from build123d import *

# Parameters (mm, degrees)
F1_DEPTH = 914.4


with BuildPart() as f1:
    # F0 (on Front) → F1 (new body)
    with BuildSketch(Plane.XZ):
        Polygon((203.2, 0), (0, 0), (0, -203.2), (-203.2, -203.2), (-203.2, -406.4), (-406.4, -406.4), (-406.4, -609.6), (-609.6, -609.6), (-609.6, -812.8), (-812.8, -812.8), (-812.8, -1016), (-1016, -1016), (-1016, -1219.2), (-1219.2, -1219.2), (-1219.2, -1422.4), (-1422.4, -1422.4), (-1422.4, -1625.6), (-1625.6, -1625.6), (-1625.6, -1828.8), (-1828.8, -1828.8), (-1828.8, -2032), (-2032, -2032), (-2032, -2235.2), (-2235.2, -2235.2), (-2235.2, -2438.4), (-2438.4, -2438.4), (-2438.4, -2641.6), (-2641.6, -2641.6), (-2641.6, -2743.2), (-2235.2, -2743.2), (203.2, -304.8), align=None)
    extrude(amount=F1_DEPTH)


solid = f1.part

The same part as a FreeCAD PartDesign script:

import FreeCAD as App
import Part
import Sketcher
Q = App.Units.Quantity

doc = App.newDocument("Part")
body = doc.addObject("PartDesign::Body", "Body")

sketch1 = body.newObject("Sketcher::SketchObject", "Sketch")
sketch1.AttachmentSupport = (doc.getObject("XZ_Plane"), [""])
sketch1.MapMode = "FlatFace"
sketch1.addGeometry([
    Part.LineSegment(App.Vector(203.2, 0, 0), App.Vector(0, 0, 0)),
    Part.LineSegment(App.Vector(0, 0, 0), App.Vector(0, -203.2, 0)),
    Part.LineSegment(App.Vector(0, -203.2, 0), App.Vector(-203.2, -203.2, 0)),
    Part.LineSegment(App.Vector(-203.2, -203.2, 0), App.Vector(-203.2, -406.4, 0)),
    Part.LineSegment(App.Vector(-203.2, -406.4, 0), App.Vector(-406.4, -406.4, 0)),
    Part.LineSegment(App.Vector(-406.4, -406.4, 0), App.Vector(-406.4, -609.6, 0)),
    Part.LineSegment(App.Vector(-406.4, -609.6, 0), App.Vector(-609.6, -609.6, 0)),
    Part.LineSegment(App.Vector(-609.6, -609.6, 0), App.Vector(-609.6, -812.8, 0)),
    Part.LineSegment(App.Vector(-609.6, -812.8, 0), App.Vector(-812.8, -812.8, 0)),
    Part.LineSegment(App.Vector(-812.8, -812.8, 0), App.Vector(-812.8, -1016, 0)),
    Part.LineSegment(App.Vector(-812.8, -1016, 0), App.Vector(-1016, -1016, 0)),
    Part.LineSegment(App.Vector(-1016, -1016, 0), App.Vector(-1016, -1219.2, 0)),
    Part.LineSegment(App.Vector(-1016, -1219.2, 0), App.Vector(-1219.2, -1219.2, 0)),
    Part.LineSegment(App.Vector(-1219.2, -1219.2, 0), App.Vector(-1219.2, -1422.4, 0)),
    Part.LineSegment(App.Vector(-1219.2, -1422.4, 0), App.Vector(-1422.4, -1422.4, 0)),
    Part.LineSegment(App.Vector(-1422.4, -1422.4, 0), App.Vector(-1422.4, -1625.6, 0)),
    Part.LineSegment(App.Vector(-1422.4, -1625.6, 0), App.Vector(-1625.6, -1625.6, 0)),
    Part.LineSegment(App.Vector(-1625.6, -1625.6, 0), App.Vector(-1625.6, -1828.8, 0)),
    Part.LineSegment(App.Vector(-1625.6, -1828.8, 0), App.Vector(-1828.8, -1828.8, 0)),
    Part.LineSegment(App.Vector(-1828.8, -1828.8, 0), App.Vector(-1828.8, -2032, 0)),
    Part.LineSegment(App.Vector(-1828.8, -2032, 0), App.Vector(-2032, -2032, 0)),
    Part.LineSegment(App.Vector(-2032, -2032, 0), App.Vector(-2032, -2235.2, 0)),
    Part.LineSegment(App.Vector(-2032, -2235.2, 0), App.Vector(-2235.2, -2235.2, 0)),
    Part.LineSegment(App.Vector(-2235.2, -2235.2, 0), App.Vector(-2235.2, -2438.4, 0)),
    Part.LineSegment(App.Vector(-2235.2, -2438.4, 0), App.Vector(-2438.4, -2438.4, 0)),
    Part.LineSegment(App.Vector(-2438.4, -2438.4, 0), App.Vector(-2438.4, -2641.6, 0)),
    Part.LineSegment(App.Vector(-2438.4, -2641.6, 0), App.Vector(-2641.6, -2641.6, 0)),
    Part.LineSegment(App.Vector(-2641.6, -2641.6, 0), App.Vector(-2641.6, -2743.2, 0)),
    Part.LineSegment(App.Vector(-2641.6, -2743.2, 0), App.Vector(-2235.2, -2743.2, 0)),
    Part.LineSegment(App.Vector(-2235.2, -2743.2, 0), App.Vector(203.2, -304.8, 0)),
    Part.LineSegment(App.Vector(203.2, -304.8, 0), App.Vector(203.2, 0, 0)),
], False)
sketch1.addConstraint([
    Sketcher.Constraint("Coincident", 0, 2, 1, 1),
    Sketcher.Constraint("Coincident", 1, 2, 2, 1),
    Sketcher.Constraint("Coincident", 2, 2, 3, 1),
    Sketcher.Constraint("Coincident", 3, 2, 4, 1),
    Sketcher.Constraint("Coincident", 4, 2, 5, 1),
    Sketcher.Constraint("Coincident", 5, 2, 6, 1),
    Sketcher.Constraint("Coincident", 6, 2, 7, 1),
    Sketcher.Constraint("Coincident", 7, 2, 8, 1),
    Sketcher.Constraint("Coincident", 8, 2, 9, 1),
    Sketcher.Constraint("Coincident", 9, 2, 10, 1),
    Sketcher.Constraint("Coincident", 10, 2, 11, 1),
    Sketcher.Constraint("Coincident", 11, 2, 12, 1),
    Sketcher.Constraint("Coincident", 12, 2, 13, 1),
    Sketcher.Constraint("Coincident", 13, 2, 14, 1),
    Sketcher.Constraint("Coincident", 14, 2, 15, 1),
    Sketcher.Constraint("Coincident", 15, 2, 16, 1),
    Sketcher.Constraint("Coincident", 16, 2, 17, 1),
    Sketcher.Constraint("Coincident", 17, 2, 18, 1),
    Sketcher.Constraint("Coincident", 18, 2, 19, 1),
    Sketcher.Constraint("Coincident", 19, 2, 20, 1),
    Sketcher.Constraint("Coincident", 20, 2, 21, 1),
    Sketcher.Constraint("Coincident", 21, 2, 22, 1),
    Sketcher.Constraint("Coincident", 22, 2, 23, 1),
    Sketcher.Constraint("Coincident", 23, 2, 24, 1),
    Sketcher.Constraint("Coincident", 24, 2, 25, 1),
    Sketcher.Constraint("Coincident", 25, 2, 26, 1),
    Sketcher.Constraint("Coincident", 26, 2, 27, 1),
    Sketcher.Constraint("Coincident", 27, 2, 28, 1),
    Sketcher.Constraint("Coincident", 28, 2, 29, 1),
    Sketcher.Constraint("Coincident", 29, 2, 30, 1),
    Sketcher.Constraint("Coincident", 30, 2, 0, 1),
    Sketcher.Constraint("Horizontal", 0),
    Sketcher.Constraint("Vertical", 1),
    Sketcher.Constraint("Horizontal", 2),
    Sketcher.Constraint("Vertical", 3),
    Sketcher.Constraint("Horizontal", 4),
    Sketcher.Constraint("Vertical", 5),
    Sketcher.Constraint("Horizontal", 6),
    Sketcher.Constraint("Vertical", 7),
    Sketcher.Constraint("Horizontal", 8),
    Sketcher.Constraint("Vertical", 9),
    Sketcher.Constraint("Horizontal", 10),
    Sketcher.Constraint("Vertical", 11),
    Sketcher.Constraint("Horizontal", 12),
    Sketcher.Constraint("Vertical", 13),
    Sketcher.Constraint("Horizontal", 14),
    Sketcher.Constraint("Vertical", 15),
    Sketcher.Constraint("Horizontal", 16),
    Sketcher.Constraint("Vertical", 17),
    Sketcher.Constraint("Horizontal", 18),
    Sketcher.Constraint("Vertical", 19),
    Sketcher.Constraint("Horizontal", 20),
    Sketcher.Constraint("Vertical", 21),
    Sketcher.Constraint("Horizontal", 22),
    Sketcher.Constraint("Vertical", 23),
    Sketcher.Constraint("Horizontal", 24),
    Sketcher.Constraint("Vertical", 25),
    Sketcher.Constraint("Horizontal", 26),
    Sketcher.Constraint("Vertical", 27),
    Sketcher.Constraint("Horizontal", 28),
    Sketcher.Constraint("Vertical", 30),
    Sketcher.Constraint("Coincident", 0, 2, -1, 1),
    Sketcher.Constraint("Vertical", 23, 2, 28, 2),
    Sketcher.Constraint("Equal", 0, 2),
    Sketcher.Constraint("Equal", 2, 4),
    Sketcher.Constraint("Equal", 4, 6),
    Sketcher.Constraint("Equal", 6, 8),
    Sketcher.Constraint("Equal", 8, 10),
    Sketcher.Constraint("Equal", 10, 12),
    Sketcher.Constraint("Equal", 12, 14),
    Sketcher.Constraint("Equal", 14, 16),
    Sketcher.Constraint("Equal", 16, 18),
    Sketcher.Constraint("Equal", 18, 20),
    Sketcher.Constraint("Equal", 20, 22),
    Sketcher.Constraint("Equal", 22, 24),
    Sketcher.Constraint("Equal", 24, 26),
    Sketcher.Constraint("Equal", 26, 1),
    Sketcher.Constraint("Equal", 1, 3),
    Sketcher.Constraint("Equal", 3, 5),
    Sketcher.Constraint("Equal", 5, 7),
    Sketcher.Constraint("Equal", 7, 9),
    Sketcher.Constraint("Equal", 9, 11),
    Sketcher.Constraint("Equal", 11, 13),
    Sketcher.Constraint("Equal", 13, 15),
    Sketcher.Constraint("Equal", 15, 17),
    Sketcher.Constraint("Equal", 17, 19),
    Sketcher.Constraint("Equal", 19, 21),
    Sketcher.Constraint("Equal", 21, 23),
    Sketcher.Constraint("Equal", 23, 25),
    Sketcher.Constraint("DistanceX", 0, 2, 0, 1, Q("8 in")),
    Sketcher.Constraint("DistanceY", 27, 2, 27, 1, Q("4 in")),
    Sketcher.Constraint("DistanceY", 30, 1, 30, 2, Q("12 in")),
])
pad1 = body.newObject("PartDesign::Pad", "Pad")
pad1.Profile = sketch1
pad1.Length = Q("36 in")

doc.recompute()
